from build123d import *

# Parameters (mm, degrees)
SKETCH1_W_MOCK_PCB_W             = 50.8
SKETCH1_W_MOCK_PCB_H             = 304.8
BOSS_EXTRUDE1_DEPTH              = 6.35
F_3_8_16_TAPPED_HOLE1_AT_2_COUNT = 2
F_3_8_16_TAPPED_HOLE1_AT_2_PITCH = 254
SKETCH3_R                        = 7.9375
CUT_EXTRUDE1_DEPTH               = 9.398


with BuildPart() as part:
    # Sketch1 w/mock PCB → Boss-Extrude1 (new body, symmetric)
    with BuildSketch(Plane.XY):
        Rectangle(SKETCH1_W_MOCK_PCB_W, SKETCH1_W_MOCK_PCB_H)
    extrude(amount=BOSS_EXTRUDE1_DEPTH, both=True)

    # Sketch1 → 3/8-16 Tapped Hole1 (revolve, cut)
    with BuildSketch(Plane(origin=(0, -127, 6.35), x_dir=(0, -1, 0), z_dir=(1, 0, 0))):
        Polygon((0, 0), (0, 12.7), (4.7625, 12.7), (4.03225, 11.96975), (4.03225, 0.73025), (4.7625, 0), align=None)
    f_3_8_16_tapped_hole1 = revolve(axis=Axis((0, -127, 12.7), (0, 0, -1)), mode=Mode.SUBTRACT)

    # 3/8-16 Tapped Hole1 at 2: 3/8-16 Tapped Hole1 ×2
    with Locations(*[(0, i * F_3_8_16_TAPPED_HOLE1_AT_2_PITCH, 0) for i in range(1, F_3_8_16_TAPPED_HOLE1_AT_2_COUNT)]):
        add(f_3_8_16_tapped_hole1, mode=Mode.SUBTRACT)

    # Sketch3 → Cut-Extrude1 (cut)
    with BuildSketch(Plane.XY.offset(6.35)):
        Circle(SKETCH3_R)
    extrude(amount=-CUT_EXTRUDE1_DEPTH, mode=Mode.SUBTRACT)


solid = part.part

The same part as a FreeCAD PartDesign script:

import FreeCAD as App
import Part
import Sketcher
Q = App.Units.Quantity


def add_polygon(sketch, points):
    """Adds a closed chain of lines whose ends are joined by coincident constraints."""
    first, n = sketch.GeometryCount, len(points)
    for a, b in zip(points, points[1:] + points[:1]):
        sketch.addGeometry(Part.LineSegment(App.Vector(*a, 0), App.Vector(*b, 0)), False)
    for i in range(n):
        sketch.addConstraint(Sketcher.Constraint("Coincident", first + i, 2, first + (i + 1) % n, 1))

doc = App.newDocument("Part")
body = doc.addObject("PartDesign::Body", "Body")

sketch1 = body.newObject("Sketcher::SketchObject", "Sketch")
sketch1.AttachmentSupport = (doc.getObject("XY_Plane"), [""])
sketch1.MapMode = "FlatFace"
add_polygon(sketch1, [(-25.4, 152.4), (-25.4, -152.4), (25.4, -152.4), (25.4, 152.4)])
sketch1.addConstraint(Sketcher.Constraint("Vertical", 0))
sketch1.addConstraint(Sketcher.Constraint("Horizontal", 1))
sketch1.addConstraint(Sketcher.Constraint("Vertical", 2))
sketch1.addConstraint(Sketcher.Constraint("Horizontal", 3))
sketch1.addConstraint(Sketcher.Constraint("Symmetric", 0, 2, 2, 2, -1, 1))
sketch1.addConstraint(Sketcher.Constraint("DistanceX", 1, 1, 1, 2, Q("2 in")))
sketch1.addConstraint(Sketcher.Constraint("DistanceY", 0, 2, 0, 1, Q("12 in")))
pad1 = body.newObject("PartDesign::Pad", "Pad")
pad1.Profile = sketch1
pad1.Length = Q("0.5 in")
pad1.Midplane = True

sketch2 = body.newObject("Sketcher::SketchObject", "Sketch001")
sketch2.AttachmentSupport = (doc.getObject("YZ_Plane"), [""])
sketch2.MapMode = "FlatFace"
add_polygon(sketch2, [(-127, -6.35), (-127, 6.35), (-131.7625, 6.35), (-131.03225, 5.61975), (-131.03225, -5.61975), (-131.7625, -6.35)])
sketch2.addGeometry(Part.LineSegment(App.Vector(-127, 6.35, 0), App.Vector(-127, -6.35, 0)), True)
sketch2.addConstraint(Sketcher.Constraint("Vertical", 0))
sketch2.addConstraint(Sketcher.Constraint("Horizontal", 1))
sketch2.addConstraint(Sketcher.Constraint("Vertical", 3))
sketch2.addConstraint(Sketcher.Constraint("Horizontal", 5))
sketch2.addConstraint(Sketcher.Constraint("Vertical", 6))
sketch2.addConstraint(Sketcher.Constraint("Coincident", 6, 1, 0, 2))
sketch2.addConstraint(Sketcher.Constraint("Symmetric", 1, 2, 4, 2, -1))
sketch2.addConstraint(Sketcher.Constraint("Perpendicular", 2, 4))
sketch2.addConstraint(Sketcher.Constraint("Horizontal", 4, 2, 6, 2))
sketch2.addConstraint(Sketcher.Constraint("Equal", 2, 4))
sketch2.addConstraint(Sketcher.Constraint("DistanceY", 0, 1, 0, 2, Q("0.5 in")))
sketch2.addConstraint(Sketcher.Constraint("DistanceX", 0, 2, -1, 1, Q("5 in")))
sketch2.addConstraint(Sketcher.Constraint("DistanceX", 1, 2, 1, 1, Q("0.1875 in")))
sketch2.addConstraint(Sketcher.Constraint("DistanceY", 3, 2, 3, 1, Q("0.4425 in")))
groove = body.newObject("PartDesign::Groove", "Groove")
groove.Profile = sketch2
groove.ReferenceAxis = (sketch2, ["Axis0"])
groove.Angle = 360
doc.recompute()

linearpattern = body.newObject("PartDesign::LinearPattern", "LinearPattern")
linearpattern.Originals = [groove]
linearpattern.Direction = (doc.getObject("Y_Axis"), [""])
linearpattern.Mode = "offset"
linearpattern.Offset = Q("10 in")
linearpattern.Occurrences = 2
body.Tip = linearpattern

sketch3 = body.newObject("Sketcher::SketchObject", "Sketch002")
sketch3.AttachmentSupport = (doc.getObject("XY_Plane"), [""])
sketch3.MapMode = "FlatFace"
sketch3.AttachmentOffset = App.Placement(App.Vector(0, 0, 0.25 * 25.4), App.Rotation())
sketch3.addGeometry(Part.Circle(App.Vector(0, 0, 0), App.Vector(0, 0, 1), 7.9375), False)
sketch3.addConstraint(Sketcher.Constraint("Coincident", 0, 3, -1, 1))
sketch3.addConstraint(Sketcher.Constraint("Diameter", 0, Q("0.625 in")))
pocket1 = body.newObject("PartDesign::Pocket", "Pocket")
pocket1.Profile = sketch3
pocket1.Length = Q("0.37 in")

doc.recompute()
